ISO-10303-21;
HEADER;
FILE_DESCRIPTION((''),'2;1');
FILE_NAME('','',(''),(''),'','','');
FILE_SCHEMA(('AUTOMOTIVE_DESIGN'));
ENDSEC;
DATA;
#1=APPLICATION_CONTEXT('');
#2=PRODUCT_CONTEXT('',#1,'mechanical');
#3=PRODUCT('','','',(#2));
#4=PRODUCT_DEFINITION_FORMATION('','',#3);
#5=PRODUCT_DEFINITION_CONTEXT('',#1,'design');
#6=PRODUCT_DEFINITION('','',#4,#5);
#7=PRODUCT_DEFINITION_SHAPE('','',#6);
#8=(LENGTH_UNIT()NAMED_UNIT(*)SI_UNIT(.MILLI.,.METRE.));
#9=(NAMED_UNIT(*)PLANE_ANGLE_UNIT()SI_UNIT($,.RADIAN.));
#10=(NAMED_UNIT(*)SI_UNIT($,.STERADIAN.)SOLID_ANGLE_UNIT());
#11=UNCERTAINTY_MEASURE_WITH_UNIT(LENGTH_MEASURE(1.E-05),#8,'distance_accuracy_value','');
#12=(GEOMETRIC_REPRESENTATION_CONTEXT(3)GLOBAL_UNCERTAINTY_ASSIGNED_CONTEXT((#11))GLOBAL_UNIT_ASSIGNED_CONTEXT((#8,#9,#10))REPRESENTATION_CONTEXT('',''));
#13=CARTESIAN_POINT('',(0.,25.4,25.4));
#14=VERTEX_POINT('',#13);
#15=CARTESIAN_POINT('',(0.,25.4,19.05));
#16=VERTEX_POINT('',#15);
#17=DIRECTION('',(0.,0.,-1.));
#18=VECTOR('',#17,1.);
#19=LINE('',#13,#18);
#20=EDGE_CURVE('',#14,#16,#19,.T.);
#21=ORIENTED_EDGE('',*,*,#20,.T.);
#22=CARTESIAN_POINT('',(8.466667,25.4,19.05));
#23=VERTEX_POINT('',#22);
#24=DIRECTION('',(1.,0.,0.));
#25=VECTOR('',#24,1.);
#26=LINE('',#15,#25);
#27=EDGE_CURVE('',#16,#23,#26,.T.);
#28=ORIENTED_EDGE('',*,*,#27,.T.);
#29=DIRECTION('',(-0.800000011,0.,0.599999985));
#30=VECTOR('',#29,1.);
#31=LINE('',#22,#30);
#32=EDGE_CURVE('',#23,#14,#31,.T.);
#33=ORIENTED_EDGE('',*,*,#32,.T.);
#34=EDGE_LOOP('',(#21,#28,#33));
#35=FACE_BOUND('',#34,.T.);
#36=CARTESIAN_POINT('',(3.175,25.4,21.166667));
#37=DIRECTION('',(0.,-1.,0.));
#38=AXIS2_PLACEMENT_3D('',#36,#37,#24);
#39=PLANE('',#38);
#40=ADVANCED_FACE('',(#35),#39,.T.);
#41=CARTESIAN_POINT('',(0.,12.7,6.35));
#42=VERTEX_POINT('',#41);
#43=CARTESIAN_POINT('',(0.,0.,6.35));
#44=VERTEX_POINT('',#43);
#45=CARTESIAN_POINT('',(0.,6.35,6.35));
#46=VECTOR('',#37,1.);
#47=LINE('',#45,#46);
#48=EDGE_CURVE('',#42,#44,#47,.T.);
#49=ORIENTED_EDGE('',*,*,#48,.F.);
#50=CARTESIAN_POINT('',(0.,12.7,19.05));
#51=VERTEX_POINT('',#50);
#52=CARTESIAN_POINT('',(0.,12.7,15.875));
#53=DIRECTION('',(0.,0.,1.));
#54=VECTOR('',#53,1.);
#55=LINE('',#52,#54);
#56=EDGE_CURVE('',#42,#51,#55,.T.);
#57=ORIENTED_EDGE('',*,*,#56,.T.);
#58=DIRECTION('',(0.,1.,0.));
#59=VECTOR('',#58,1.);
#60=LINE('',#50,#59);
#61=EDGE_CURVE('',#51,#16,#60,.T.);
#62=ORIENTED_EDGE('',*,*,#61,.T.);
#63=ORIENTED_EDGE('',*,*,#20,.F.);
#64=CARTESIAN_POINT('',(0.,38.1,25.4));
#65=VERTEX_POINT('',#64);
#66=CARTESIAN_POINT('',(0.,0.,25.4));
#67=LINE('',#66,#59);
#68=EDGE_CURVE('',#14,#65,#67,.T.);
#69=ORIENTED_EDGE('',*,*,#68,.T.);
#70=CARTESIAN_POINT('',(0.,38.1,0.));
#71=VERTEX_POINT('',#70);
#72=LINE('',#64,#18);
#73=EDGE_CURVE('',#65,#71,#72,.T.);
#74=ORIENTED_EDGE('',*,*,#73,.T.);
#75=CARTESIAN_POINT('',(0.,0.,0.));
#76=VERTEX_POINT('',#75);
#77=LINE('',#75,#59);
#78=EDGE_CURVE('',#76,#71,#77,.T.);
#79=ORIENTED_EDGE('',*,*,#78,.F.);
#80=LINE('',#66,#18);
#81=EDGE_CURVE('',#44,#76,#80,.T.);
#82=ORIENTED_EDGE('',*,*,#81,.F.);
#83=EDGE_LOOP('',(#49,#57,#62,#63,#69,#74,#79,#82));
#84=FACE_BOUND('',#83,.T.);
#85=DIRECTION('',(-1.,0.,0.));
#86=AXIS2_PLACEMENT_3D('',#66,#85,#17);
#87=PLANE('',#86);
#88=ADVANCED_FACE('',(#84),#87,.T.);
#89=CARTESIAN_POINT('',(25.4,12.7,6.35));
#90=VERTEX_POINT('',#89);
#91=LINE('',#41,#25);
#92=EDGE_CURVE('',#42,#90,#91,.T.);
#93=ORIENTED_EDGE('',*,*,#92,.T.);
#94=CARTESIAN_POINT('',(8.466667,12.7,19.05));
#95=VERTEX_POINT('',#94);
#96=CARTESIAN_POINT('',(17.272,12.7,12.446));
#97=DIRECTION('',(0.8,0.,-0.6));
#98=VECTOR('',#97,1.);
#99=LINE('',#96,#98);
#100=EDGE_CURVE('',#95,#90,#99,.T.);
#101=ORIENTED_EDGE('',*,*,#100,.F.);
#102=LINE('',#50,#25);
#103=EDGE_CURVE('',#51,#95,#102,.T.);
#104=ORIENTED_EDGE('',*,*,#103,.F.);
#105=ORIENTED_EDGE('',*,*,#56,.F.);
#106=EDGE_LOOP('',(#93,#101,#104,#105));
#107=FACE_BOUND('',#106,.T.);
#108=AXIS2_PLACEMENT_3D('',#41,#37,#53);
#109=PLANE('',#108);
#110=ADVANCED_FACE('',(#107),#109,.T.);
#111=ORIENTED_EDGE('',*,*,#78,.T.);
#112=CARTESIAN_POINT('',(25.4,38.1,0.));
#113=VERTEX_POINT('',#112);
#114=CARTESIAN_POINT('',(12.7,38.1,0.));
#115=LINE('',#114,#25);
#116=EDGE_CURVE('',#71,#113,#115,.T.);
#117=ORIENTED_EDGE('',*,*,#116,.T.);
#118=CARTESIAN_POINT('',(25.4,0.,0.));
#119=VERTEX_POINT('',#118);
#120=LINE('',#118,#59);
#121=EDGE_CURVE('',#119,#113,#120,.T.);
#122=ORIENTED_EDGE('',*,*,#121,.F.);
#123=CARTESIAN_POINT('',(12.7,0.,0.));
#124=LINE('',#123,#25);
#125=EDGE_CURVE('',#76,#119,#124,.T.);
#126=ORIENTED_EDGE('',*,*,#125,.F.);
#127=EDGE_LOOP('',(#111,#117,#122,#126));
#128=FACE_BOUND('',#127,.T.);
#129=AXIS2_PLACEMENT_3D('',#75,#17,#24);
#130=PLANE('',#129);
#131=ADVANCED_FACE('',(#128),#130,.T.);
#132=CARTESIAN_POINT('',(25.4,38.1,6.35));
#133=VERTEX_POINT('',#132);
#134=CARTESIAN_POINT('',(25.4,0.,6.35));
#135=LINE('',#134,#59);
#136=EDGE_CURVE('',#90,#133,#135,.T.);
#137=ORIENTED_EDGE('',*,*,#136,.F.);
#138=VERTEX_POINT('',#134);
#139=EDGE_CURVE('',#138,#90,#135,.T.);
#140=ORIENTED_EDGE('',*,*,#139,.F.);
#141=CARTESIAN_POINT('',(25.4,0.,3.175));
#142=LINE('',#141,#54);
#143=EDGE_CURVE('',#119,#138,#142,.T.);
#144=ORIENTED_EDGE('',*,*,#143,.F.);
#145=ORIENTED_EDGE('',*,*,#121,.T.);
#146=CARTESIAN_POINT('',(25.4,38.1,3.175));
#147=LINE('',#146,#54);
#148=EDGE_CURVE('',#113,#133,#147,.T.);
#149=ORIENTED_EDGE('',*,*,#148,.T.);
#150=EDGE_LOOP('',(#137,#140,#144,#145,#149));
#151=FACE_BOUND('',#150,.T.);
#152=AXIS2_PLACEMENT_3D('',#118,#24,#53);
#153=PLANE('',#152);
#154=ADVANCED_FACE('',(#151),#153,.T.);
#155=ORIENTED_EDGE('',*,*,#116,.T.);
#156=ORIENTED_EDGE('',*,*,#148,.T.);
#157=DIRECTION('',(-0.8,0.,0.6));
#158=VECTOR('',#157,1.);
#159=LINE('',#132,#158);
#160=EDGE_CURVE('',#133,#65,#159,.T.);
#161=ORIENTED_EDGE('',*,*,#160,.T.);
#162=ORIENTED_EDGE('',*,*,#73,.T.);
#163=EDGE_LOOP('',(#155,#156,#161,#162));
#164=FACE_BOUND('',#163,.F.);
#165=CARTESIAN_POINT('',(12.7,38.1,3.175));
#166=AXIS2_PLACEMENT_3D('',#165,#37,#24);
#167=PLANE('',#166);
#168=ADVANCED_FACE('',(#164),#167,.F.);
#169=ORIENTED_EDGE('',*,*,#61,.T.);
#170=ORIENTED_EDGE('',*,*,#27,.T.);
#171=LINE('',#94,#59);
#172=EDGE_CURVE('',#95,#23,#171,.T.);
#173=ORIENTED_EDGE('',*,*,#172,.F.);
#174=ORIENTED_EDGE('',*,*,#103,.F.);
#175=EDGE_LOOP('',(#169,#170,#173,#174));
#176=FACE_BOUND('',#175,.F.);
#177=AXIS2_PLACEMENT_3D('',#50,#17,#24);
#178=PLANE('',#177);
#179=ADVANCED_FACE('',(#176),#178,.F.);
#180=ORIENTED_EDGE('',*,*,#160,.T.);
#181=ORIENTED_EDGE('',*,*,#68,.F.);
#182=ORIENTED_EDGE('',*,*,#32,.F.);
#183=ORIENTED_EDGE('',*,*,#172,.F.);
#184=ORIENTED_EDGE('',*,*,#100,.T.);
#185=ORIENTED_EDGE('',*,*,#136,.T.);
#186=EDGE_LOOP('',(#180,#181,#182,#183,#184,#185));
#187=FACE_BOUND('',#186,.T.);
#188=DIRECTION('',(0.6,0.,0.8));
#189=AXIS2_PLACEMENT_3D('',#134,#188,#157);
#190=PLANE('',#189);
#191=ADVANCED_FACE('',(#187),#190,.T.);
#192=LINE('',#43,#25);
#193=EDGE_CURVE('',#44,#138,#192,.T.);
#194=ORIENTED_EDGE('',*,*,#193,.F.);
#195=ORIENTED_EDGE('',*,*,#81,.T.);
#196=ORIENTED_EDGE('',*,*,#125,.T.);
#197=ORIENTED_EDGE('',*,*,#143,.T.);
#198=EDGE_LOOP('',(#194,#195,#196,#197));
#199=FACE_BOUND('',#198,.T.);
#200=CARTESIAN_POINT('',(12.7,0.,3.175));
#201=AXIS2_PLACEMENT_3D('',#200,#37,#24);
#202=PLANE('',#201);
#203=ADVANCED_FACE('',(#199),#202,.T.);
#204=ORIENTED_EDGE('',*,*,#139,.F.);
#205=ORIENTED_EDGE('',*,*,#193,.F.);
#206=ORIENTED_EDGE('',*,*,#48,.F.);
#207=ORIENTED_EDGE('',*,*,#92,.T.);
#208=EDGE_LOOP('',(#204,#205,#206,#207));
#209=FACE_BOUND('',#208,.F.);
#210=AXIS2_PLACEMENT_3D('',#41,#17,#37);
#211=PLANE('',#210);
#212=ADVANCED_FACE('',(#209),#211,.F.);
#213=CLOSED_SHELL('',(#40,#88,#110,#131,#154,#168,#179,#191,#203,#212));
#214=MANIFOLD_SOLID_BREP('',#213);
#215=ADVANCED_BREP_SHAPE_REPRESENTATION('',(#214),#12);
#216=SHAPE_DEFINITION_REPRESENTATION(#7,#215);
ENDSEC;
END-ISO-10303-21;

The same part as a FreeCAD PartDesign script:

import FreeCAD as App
import Part
import Sketcher
from FreeCAD import Vector
Q = App.Units.Quantity

doc = App.newDocument("Part")
body = doc.addObject("PartDesign::Body", "Body")

# Sketch on XZ plane
sketch1 = body.newObject("Sketcher::SketchObject", "Sketch")
sketch1.AttachmentSupport = (doc.getObject("XZ_Plane"), [""])
sketch1.MapMode = "FlatFace"
sketch1.addGeometry(Part.LineSegment(Vector(0, 0, 0), Vector(25, 0, 0)), False)
sketch1.addGeometry(Part.LineSegment(Vector(25, 0, 0), Vector(25, 6, 0)), False)
sketch1.addGeometry(Part.LineSegment(Vector(25, 6, 0), Vector(0, 25, 0)), False)
sketch1.addGeometry(Part.LineSegment(Vector(0, 25, 0), Vector(0, 0, 0)), False)
sketch1.addConstraint(Sketcher.Constraint("Coincident", 0, 2, 1, 1))
sketch1.addConstraint(Sketcher.Constraint("Coincident", 1, 2, 2, 1))
sketch1.addConstraint(Sketcher.Constraint("Coincident", 2, 2, 3, 1))
sketch1.addConstraint(Sketcher.Constraint("Coincident", 3, 2, 0, 1))
sketch1.addConstraint(Sketcher.Constraint("Horizontal", 0))
sketch1.addConstraint(Sketcher.Constraint("Vertical", 1))
sketch1.addConstraint(Sketcher.Constraint("Vertical", 3))
sketch1.addConstraint(Sketcher.Constraint("Coincident", 3, 2, -1, 1))
sketch1.addConstraint(Sketcher.Constraint("Equal", 0, 3))
sketch1.addConstraint(Sketcher.Constraint("DistanceX", 0, 1, 0, 2, Q("1 in")))
sketch1.addConstraint(Sketcher.Constraint("DistanceY", 1, 1, 1, 2, Q("0.25 in")))
pad1 = body.newObject("PartDesign::Pad", "Pad")
pad1.Profile = sketch1
pad1.Length = Q("1.5 in")
pad1.Reversed = True

# Sketch on YZ plane
sketch2 = body.newObject("Sketcher::SketchObject", "Sketch001")
sketch2.AttachmentSupport = (doc.getObject("YZ_Plane"), [""])
sketch2.MapMode = "FlatFace"
sketch2.addGeometry(Part.LineSegment(Vector(13, 25, 0), Vector(13, 6, 0)), False)
sketch2.addGeometry(Part.LineSegment(Vector(13, 6, 0), Vector(0, 6, 0)), False)
sketch2.addGeometry(Part.LineSegment(Vector(0, 6, 0), Vector(0, 25, 0)), False)
sketch2.addGeometry(Part.LineSegment(Vector(0, 25, 0), Vector(13, 25, 0)), False)
sketch2.addConstraint(Sketcher.Constraint("Coincident", 0, 2, 1, 1))
sketch2.addConstraint(Sketcher.Constraint("Coincident", 1, 2, 2, 1))
sketch2.addConstraint(Sketcher.Constraint("Coincident", 2, 2, 3, 1))
sketch2.addConstraint(Sketcher.Constraint("Coincident", 3, 2, 0, 1))
sketch2.addConstraint(Sketcher.Constraint("Vertical", 0))
sketch2.addConstraint(Sketcher.Constraint("Horizontal", 1))
sketch2.addConstraint(Sketcher.Constraint("Vertical", 2))
sketch2.addConstraint(Sketcher.Constraint("Horizontal", 3))
sketch2.addConstraint(Sketcher.Constraint("PointOnObject", 1, 2, -2))
sketch2.addConstraint(Sketcher.Constraint("DistanceX", 1, 2, 1, 1, Q("0.5 in")))
sketch2.addConstraint(Sketcher.Constraint("DistanceY", -1, 1, 2, 2, Q("1 in")))
sketch2.addConstraint(Sketcher.Constraint("DistanceY", 0, 2, 0, 1, Q("0.75 in")))
pocket1 = body.newObject("PartDesign::Pocket", "Pocket")
pocket1.Profile = sketch2
pocket1.Length = Q("1 in")
pocket1.Reversed = True

# Sketch on XZ plane
sketch3 = body.newObject("Sketcher::SketchObject", "Sketch002")
sketch3.AttachmentSupport = (doc.getObject("XZ_Plane"), [""])
sketch3.MapMode = "FlatFace"
sketch3.AttachmentOffset = App.Placement(Vector(0, 0, -0.5 * 25.4), App.Rotation())
sketch3.addGeometry(Part.LineSegment(Vector(0, 25, 0), Vector(0, 19, 0)), False)
sketch3.addGeometry(Part.LineSegment(Vector(0, 19, 0), Vector(8, 19, 0)), False)
sketch3.addGeometry(Part.LineSegment(Vector(8, 19, 0), Vector(0, 25, 0)), False)
sketch3.addConstraint(Sketcher.Constraint("Coincident", 0, 2, 1, 1))
sketch3.addConstraint(Sketcher.Constraint("Coincident", 1, 2, 2, 1))
sketch3.addConstraint(Sketcher.Constraint("Coincident", 2, 2, 0, 1))
sketch3.addConstraint(Sketcher.Constraint("Vertical", 0))
sketch3.addConstraint(Sketcher.Constraint("Horizontal", 1))
sketch3.addConstraint(Sketcher.Constraint("PointOnObject", 0, 2, -2))
sketch3.addConstraint(Sketcher.Constraint("DistanceY", -1, 1, 2, 2, Q("1 in")))
sketch3.addConstraint(Sketcher.Constraint("DistanceY", 0, 2, 0, 1, Q("0.25 in")))
sketch3.addConstraint(Sketcher.Constraint("DistanceX", 1, 1, 1, 2, Q("8.466667 mm")))
pocket2 = body.newObject("PartDesign::Pocket", "Pocket001")
pocket2.Profile = sketch3
pocket2.Length = Q("0.5 in")

doc.recompute()
